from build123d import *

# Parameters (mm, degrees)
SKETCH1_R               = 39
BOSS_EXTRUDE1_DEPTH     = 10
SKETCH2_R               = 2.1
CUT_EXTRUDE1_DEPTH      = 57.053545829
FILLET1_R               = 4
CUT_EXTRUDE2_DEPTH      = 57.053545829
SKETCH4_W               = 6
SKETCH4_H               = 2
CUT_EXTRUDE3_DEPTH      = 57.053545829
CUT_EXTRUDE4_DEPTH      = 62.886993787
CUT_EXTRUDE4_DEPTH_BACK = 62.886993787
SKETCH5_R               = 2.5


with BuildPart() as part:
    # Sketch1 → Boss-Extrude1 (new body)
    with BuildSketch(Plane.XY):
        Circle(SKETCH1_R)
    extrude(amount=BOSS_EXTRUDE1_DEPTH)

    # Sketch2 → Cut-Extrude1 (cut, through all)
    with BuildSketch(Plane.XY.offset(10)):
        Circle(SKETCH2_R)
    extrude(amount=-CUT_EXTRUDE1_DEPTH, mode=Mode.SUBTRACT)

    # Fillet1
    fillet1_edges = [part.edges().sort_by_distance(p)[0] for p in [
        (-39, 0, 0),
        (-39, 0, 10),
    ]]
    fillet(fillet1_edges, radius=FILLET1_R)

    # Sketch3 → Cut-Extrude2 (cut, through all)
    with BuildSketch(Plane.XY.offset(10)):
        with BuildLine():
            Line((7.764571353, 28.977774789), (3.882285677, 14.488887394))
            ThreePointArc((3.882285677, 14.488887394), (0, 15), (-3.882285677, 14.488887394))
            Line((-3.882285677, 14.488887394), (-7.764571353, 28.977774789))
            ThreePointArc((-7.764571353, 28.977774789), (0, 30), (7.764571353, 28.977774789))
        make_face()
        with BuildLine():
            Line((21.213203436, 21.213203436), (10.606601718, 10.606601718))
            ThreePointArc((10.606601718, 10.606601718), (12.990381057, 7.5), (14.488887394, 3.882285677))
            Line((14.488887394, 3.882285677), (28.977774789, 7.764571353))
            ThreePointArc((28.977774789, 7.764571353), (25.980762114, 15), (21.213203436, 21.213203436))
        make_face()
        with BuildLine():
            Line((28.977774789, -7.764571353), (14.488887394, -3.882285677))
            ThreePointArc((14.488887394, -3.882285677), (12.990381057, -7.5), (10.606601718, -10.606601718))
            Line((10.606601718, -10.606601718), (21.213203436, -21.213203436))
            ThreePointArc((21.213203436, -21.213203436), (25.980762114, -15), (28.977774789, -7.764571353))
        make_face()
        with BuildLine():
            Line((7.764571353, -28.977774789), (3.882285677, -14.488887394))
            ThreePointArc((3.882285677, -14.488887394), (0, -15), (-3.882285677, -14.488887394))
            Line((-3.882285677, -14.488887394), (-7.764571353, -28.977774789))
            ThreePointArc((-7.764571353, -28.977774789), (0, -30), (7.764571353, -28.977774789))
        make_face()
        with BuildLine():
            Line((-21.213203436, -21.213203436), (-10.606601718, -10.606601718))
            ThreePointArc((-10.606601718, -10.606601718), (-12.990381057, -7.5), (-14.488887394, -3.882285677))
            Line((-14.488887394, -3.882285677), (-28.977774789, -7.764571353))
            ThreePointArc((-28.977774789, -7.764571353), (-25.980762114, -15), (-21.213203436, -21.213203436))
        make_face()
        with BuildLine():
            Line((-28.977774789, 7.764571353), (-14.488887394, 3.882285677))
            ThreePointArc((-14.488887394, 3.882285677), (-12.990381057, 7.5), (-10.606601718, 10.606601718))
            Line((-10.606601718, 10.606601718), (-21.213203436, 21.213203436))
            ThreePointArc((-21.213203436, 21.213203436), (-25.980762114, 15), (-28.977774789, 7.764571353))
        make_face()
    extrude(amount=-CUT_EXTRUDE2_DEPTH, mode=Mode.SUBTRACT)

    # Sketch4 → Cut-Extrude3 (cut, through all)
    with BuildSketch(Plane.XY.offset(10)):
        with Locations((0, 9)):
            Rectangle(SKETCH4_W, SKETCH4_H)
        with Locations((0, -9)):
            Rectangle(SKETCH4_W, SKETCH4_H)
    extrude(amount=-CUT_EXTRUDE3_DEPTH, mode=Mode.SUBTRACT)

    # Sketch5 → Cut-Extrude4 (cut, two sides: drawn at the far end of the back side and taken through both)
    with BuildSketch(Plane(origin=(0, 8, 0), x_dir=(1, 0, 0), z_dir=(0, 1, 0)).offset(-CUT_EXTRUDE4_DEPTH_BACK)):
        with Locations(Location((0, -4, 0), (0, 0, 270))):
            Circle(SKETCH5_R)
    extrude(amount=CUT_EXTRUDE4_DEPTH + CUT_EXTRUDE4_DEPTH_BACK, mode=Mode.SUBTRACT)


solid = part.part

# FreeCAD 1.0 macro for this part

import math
import FreeCAD as App
import Part
import Sketcher
Q = App.Units.Quantity


def edges_at(feature, points):
    """Names of the edges that pass closest to the given points."""
    edges = feature.Shape.Edges
    near = lambda p: min(range(len(edges)), key=lambda i: edges[i].distToShape(Part.Vertex(*p))[0])
    return sorted({f"Edge{near(p) + 1}" for p in points})

doc = App.newDocument("Part")
body = doc.addObject("PartDesign::Body", "Body")

# Sketch on XY plane
sketch1 = doc.addObject("Sketcher::SketchObject", "Sketch")
body.addObject(sketch1)
sketch1.AttachmentSupport = (doc.XY_Plane, [""])
sketch1.MapMode = "FlatFace"
sketch1.addGeometry(Part.Circle(App.Vector(0, 0, 0), App.Vector(0, 0, 1), 39), False)
sketch1.addConstraint([
    Sketcher.Constraint("Coincident", 0, 3, -1, 1),
    Sketcher.Constraint("Diameter", 0, 78.0),
])
pad1 = doc.addObject("PartDesign::Pad", "Pad")
body.addObject(pad1)
pad1.Profile = sketch1
pad1.Length = 10

# Sketch on XY plane
sketch2 = doc.addObject("Sketcher::SketchObject", "Sketch001")
body.addObject(sketch2)
sketch2.AttachmentSupport = (doc.XY_Plane, [""])
sketch2.MapMode = "FlatFace"
sketch2.AttachmentOffset = App.Placement(App.Vector(0, 0, 10), App.Rotation())
sketch2.addGeometry(Part.Circle(App.Vector(0, 0, 0), App.Vector(0, 0, 1), 2.1), False)
sketch2.addConstraint([
    Sketcher.Constraint("Coincident", 0, 3, -1, 1),
    Sketcher.Constraint("Diameter", 0, 4.2),
])
pocket1 = doc.addObject("PartDesign::Pocket", "Pocket")
body.addObject(pocket1)
pocket1.Profile = sketch2
pocket1.Type = "ThroughAll"
doc.recompute()

fillet = doc.addObject("PartDesign::Fillet", "Fillet")
body.addObject(fillet)
fillet.Base = (pocket1, edges_at(pocket1, [(-39, 0, 0), (-39, 0, 10)]))
fillet.Radius = 4

# Sketch on XY plane
sketch3 = doc.addObject("Sketcher::SketchObject", "Sketch002")
body.addObject(sketch3)
sketch3.AttachmentSupport = (doc.XY_Plane, [""])
sketch3.MapMode = "FlatFace"
sketch3.AttachmentOffset = App.Placement(App.Vector(0, 0, 10), App.Rotation())
sketch3.addGeometry([
    Part.LineSegment(App.Vector(3.882286, 14.488887, 0), App.Vector(7.764571, 28.977775, 0)),  # 0
    Part.ArcOfCircle(Part.Circle(App.Vector(0, 0, 0), App.Vector(0, 0, 1), 30), math.radians(75), math.radians(105)),  # 1
    Part.LineSegment(App.Vector(-7.764571, 28.977775, 0), App.Vector(-3.882286, 14.488887, 0)),  # 2
    Part.ArcOfCircle(Part.Circle(App.Vector(0, 0, 0), App.Vector(0, 0, 1), 15), math.radians(75), math.radians(105)),  # 3
    Part.LineSegment(App.Vector(21.213203, 21.213203, 0), App.Vector(10.606602, 10.606602, 0)),  # 4
    Part.ArcOfCircle(Part.Circle(App.Vector(0, 0, 0), App.Vector(0, 0, 1), 15), math.radians(15), math.radians(45)),  # 5
    Part.LineSegment(App.Vector(14.488887, 3.882286, 0), App.Vector(28.977775, 7.764571, 0)),  # 6
    Part.ArcOfCircle(Part.Circle(App.Vector(0, 0, 0), App.Vector(0, 0, 1), 30), math.radians(15), math.radians(45)),  # 7
    Part.LineSegment(App.Vector(28.977775, -7.764571, 0), App.Vector(14.488887, -3.882286, 0)),  # 8
    Part.ArcOfCircle(Part.Circle(App.Vector(0, 0, 0), App.Vector(0, 0, 1), 15), math.radians(-45), math.radians(-15)),  # 9
    Part.LineSegment(App.Vector(10.606602, -10.606602, 0), App.Vector(21.213203, -21.213203, 0)),  # 10
    Part.ArcOfCircle(Part.Circle(App.Vector(0, 0, 0), App.Vector(0, 0, 1), 30), math.radians(-45), math.radians(-15)),  # 11
    Part.LineSegment(App.Vector(7.764571, -28.977775, 0), App.Vector(3.882286, -14.488887, 0)),  # 12
    Part.ArcOfCircle(Part.Circle(App.Vector(0, 0, 0), App.Vector(0, 0, 1), 15), math.radians(-105), math.radians(-75)),  # 13
    Part.LineSegment(App.Vector(-3.882286, -14.488887, 0), App.Vector(-7.764571, -28.977775, 0)),  # 14
    Part.ArcOfCircle(Part.Circle(App.Vector(0, 0, 0), App.Vector(0, 0, 1), 30), math.radians(-105), math.radians(-75)),  # 15
    Part.LineSegment(App.Vector(-21.213203, -21.213203, 0), App.Vector(-10.606602, -10.606602, 0)),  # 16
    Part.ArcOfCircle(Part.Circle(App.Vector(0, 0, 0), App.Vector(0, 0, 1), 15), math.radians(-165), math.radians(-135)),  # 17
    Part.LineSegment(App.Vector(-14.488887, -3.882286, 0), App.Vector(-28.977775, -7.764571, 0)),  # 18
    Part.ArcOfCircle(Part.Circle(App.Vector(0, 0, 0), App.Vector(0, 0, 1), 30), math.radians(-165), math.radians(-135)),  # 19
    Part.LineSegment(App.Vector(-28.977775, 7.764571, 0), App.Vector(-14.488887, 3.882286, 0)),  # 20
    Part.ArcOfCircle(Part.Circle(App.Vector(0, 0, 0), App.Vector(0, 0, 1), 15), math.radians(135), math.radians(165)),  # 21
    Part.LineSegment(App.Vector(-10.606602, 10.606602, 0), App.Vector(-21.213203, 21.213203, 0)),  # 22
    Part.ArcOfCircle(Part.Circle(App.Vector(0, 0, 0), App.Vector(0, 0, 1), 30), math.radians(135), math.radians(165)),  # 23
], False)
sketch3.addConstraint([
    Sketcher.Constraint("Coincident", 0, 2, 1, 1),
    Sketcher.Constraint("Coincident", 1, 2, 2, 1),
    Sketcher.Constraint("Coincident", 2, 2, 3, 2),
    Sketcher.Constraint("Coincident", 3, 1, 0, 1),
    Sketcher.Constraint("Coincident", 4, 2, 5, 2),
    Sketcher.Constraint("Coincident", 5, 1, 6, 1),
    Sketcher.Constraint("Coincident", 6, 2, 7, 1),
    Sketcher.Constraint("Coincident", 7, 2, 4, 1),
    Sketcher.Constraint("Coincident", 8, 2, 9, 2),
    Sketcher.Constraint("Coincident", 9, 1, 10, 1),
    Sketcher.Constraint("Coincident", 10, 2, 11, 1),
    Sketcher.Constraint("Coincident", 11, 2, 8, 1),
    Sketcher.Constraint("Coincident", 12, 2, 13, 2),
    Sketcher.Constraint("Coincident", 13, 1, 14, 1),
    Sketcher.Constraint("Coincident", 14, 2, 15, 1),
    Sketcher.Constraint("Coincident", 15, 2, 12, 1),
    Sketcher.Constraint("Coincident", 16, 2, 17, 2),
    Sketcher.Constraint("Coincident", 17, 1, 18, 1),
    Sketcher.Constraint("Coincident", 18, 2, 19, 1),
    Sketcher.Constraint("Coincident", 19, 2, 16, 1),
    Sketcher.Constraint("Coincident", 20, 2, 21, 2),
    Sketcher.Constraint("Coincident", 21, 1, 22, 1),
    Sketcher.Constraint("Coincident", 22, 2, 23, 1),
    Sketcher.Constraint("Coincident", 23, 2, 20, 1),
    Sketcher.Constraint("Coincident", 1, 3, -1, 1),
    Sketcher.Constraint("Coincident", 3, 3, -1, 1),
    Sketcher.Constraint("Coincident", 5, 3, -1, 1),
    Sketcher.Constraint("Coincident", 7, 3, -1, 1),
    Sketcher.Constraint("Coincident", 9, 3, -1, 1),
    Sketcher.Constraint("Coincident", 11, 3, -1, 1),
    Sketcher.Constraint("Coincident", 13, 3, -1, 1),
    Sketcher.Constraint("Coincident", 15, 3, -1, 1),
    Sketcher.Constraint("Coincident", 17, 3, -1, 1),
    Sketcher.Constraint("Coincident", 19, 3, -1, 1),
    Sketcher.Constraint("Coincident", 21, 3, -1, 1),
    Sketcher.Constraint("Coincident", 23, 3, -1, 1),
    Sketcher.Constraint("Equal", 3, 5),
    Sketcher.Constraint("Equal", 1, 7),
    Sketcher.Constraint("Equal", 5, 9),
    Sketcher.Constraint("Equal", 7, 11),
    Sketcher.Constraint("Equal", 9, 13),
    Sketcher.Constraint("Equal", 11, 15),
    Sketcher.Constraint("Equal", 13, 17),
    Sketcher.Constraint("Equal", 15, 19),
    Sketcher.Constraint("Equal", 17, 21),
    Sketcher.Constraint("Equal", 19, 23),
    Sketcher.Constraint("Perpendicular", 2, 6),
    Sketcher.Constraint("Perpendicular", 0, 8),
    Sketcher.Constraint("Perpendicular", 4, 10),
    Sketcher.Constraint("Perpendicular", 6, 12),
    Sketcher.Constraint("Perpendicular", 8, 14),
    Sketcher.Constraint("Perpendicular", 10, 16),
    Sketcher.Constraint("Perpendicular", 12, 18),
    Sketcher.Constraint("Perpendicular", 14, 20),
    Sketcher.Constraint("Perpendicular", 16, 22),
    Sketcher.Constraint("Horizontal", 0, 2, 1, 2),
    Sketcher.Constraint("Horizontal", 2, 2, 3, 1),
    Sketcher.Constraint("Horizontal", 12, 2, 13, 1),
    Sketcher.Constraint("Horizontal", 9, 1, 16, 2),
    Sketcher.Constraint("Horizontal", 8, 2, 17, 1),
    Sketcher.Constraint("Horizontal", 10, 2, 19, 2),
    Sketcher.Constraint("Horizontal", 5, 1, 20, 2),
    Sketcher.Constraint("Horizontal", 4, 2, 21, 1),
    Sketcher.Constraint("Vertical", 5, 1, 8, 2),
    Sketcher.Constraint("Vertical", 4, 2, 9, 1),
    Sketcher.Constraint("Vertical", 3, 1, 12, 2),
    Sketcher.Constraint("Radius", 1, 30.0),
    Sketcher.Constraint("Radius", 3, 15.0),
    Sketcher.Constraint("Angle", 0, Q("75 deg")),
    Sketcher.Constraint("DistanceX", -1, 1, 4, 2, 10.606602),
    Sketcher.Constraint("DistanceX", -1, 1, 0, 2, 7.764571),
    Sketcher.Constraint("DistanceY", -1, 1, 6, 2, 7.764571),
])
pocket2 = doc.addObject("PartDesign::Pocket", "Pocket001")
body.addObject(pocket2)
pocket2.Profile = sketch3
pocket2.Type = "ThroughAll"

# Sketch on XY plane
sketch4 = doc.addObject("Sketcher::SketchObject", "Sketch003")
body.addObject(sketch4)
sketch4.AttachmentSupport = (doc.XY_Plane, [""])
sketch4.MapMode = "FlatFace"
sketch4.AttachmentOffset = App.Placement(App.Vector(0, 0, 10), App.Rotation())
sketch4.addGeometry([
    Part.LineSegment(App.Vector(-3, 10, 0), App.Vector(-3, 8, 0)),  # 0
    Part.LineSegment(App.Vector(-3, 8, 0), App.Vector(3, 8, 0)),  # 1
    Part.LineSegment(App.Vector(3, 8, 0), App.Vector(3, 10, 0)),  # 2
    Part.LineSegment(App.Vector(3, 10, 0), App.Vector(-3, 10, 0)),  # 3
    Part.LineSegment(App.Vector(-3, -8, 0), App.Vector(-3, -10, 0)),  # 4
    Part.LineSegment(App.Vector(-3, -10, 0), App.Vector(3, -10, 0)),  # 5
    Part.LineSegment(App.Vector(3, -10, 0), App.Vector(3, -8, 0)),  # 6
    Part.LineSegment(App.Vector(3, -8, 0), App.Vector(-3, -8, 0)),  # 7
], False)
sketch4.addConstraint([
    Sketcher.Constraint("Coincident", 0, 2, 1, 1),
    Sketcher.Constraint("Coincident", 1, 2, 2, 1),
    Sketcher.Constraint("Coincident", 2, 2, 3, 1),
    Sketcher.Constraint("Coincident", 3, 2, 0, 1),
    Sketcher.Constraint("Coincident", 4, 2, 5, 1),
    Sketcher.Constraint("Coincident", 5, 2, 6, 1),
    Sketcher.Constraint("Coincident", 6, 2, 7, 1),
    Sketcher.Constraint("Coincident", 7, 2, 4, 1),
    Sketcher.Constraint("Vertical", 0),
    Sketcher.Constraint("Horizontal", 1),
    Sketcher.Constraint("Vertical", 2),
    Sketcher.Constraint("Horizontal", 3),
    Sketcher.Constraint("Vertical", 4),
    Sketcher.Constraint("Horizontal", 5),
    Sketcher.Constraint("Vertical", 6),
    Sketcher.Constraint("Horizontal", 7),
    Sketcher.Constraint("Symmetric", 2, 2, 4, 2, -1, 1),
    Sketcher.Constraint("Symmetric", 0, 2, 6, 2, -1, 1),
    Sketcher.Constraint("Vertical", 3, 2, 4, 2),
    Sketcher.Constraint("DistanceX", 1, 1, 1, 2, 6.0),
    Sketcher.Constraint("DistanceY", 0, 2, 0, 1, 2.0),
    Sketcher.Constraint("DistanceY", -1, 1, 0, 2, 8.0),
])
pocket3 = doc.addObject("PartDesign::Pocket", "Pocket002")
body.addObject(pocket3)
pocket3.Profile = sketch4
pocket3.Type = "ThroughAll"

# Sketch on XZ plane
sketch5 = doc.addObject("Sketcher::SketchObject", "Sketch004")
body.addObject(sketch5)
sketch5.AttachmentSupport = (doc.XZ_Plane, [""])
sketch5.MapMode = "FlatFace"
sketch5.AttachmentOffset = App.Placement(App.Vector(0, 0, -8), App.Rotation())
sketch5.addGeometry(Part.Circle(App.Vector(0, 4, 0), App.Vector(0, 0, 1), 2.5), False)
sketch5.addConstraint([
    Sketcher.Constraint("PointOnObject", 0, 3, -2),
    Sketcher.Constraint("Diameter", 0, 5.0),
    Sketcher.Constraint("DistanceY", -1, 1, 0, 3, 4.0),
])
pocket4 = doc.addObject("PartDesign::Pocket", "Pocket003")
body.addObject(pocket4)
pocket4.Profile = sketch5
pocket4.Type = "ThroughAll"
pocket4.Midplane = True

doc.recompute()
